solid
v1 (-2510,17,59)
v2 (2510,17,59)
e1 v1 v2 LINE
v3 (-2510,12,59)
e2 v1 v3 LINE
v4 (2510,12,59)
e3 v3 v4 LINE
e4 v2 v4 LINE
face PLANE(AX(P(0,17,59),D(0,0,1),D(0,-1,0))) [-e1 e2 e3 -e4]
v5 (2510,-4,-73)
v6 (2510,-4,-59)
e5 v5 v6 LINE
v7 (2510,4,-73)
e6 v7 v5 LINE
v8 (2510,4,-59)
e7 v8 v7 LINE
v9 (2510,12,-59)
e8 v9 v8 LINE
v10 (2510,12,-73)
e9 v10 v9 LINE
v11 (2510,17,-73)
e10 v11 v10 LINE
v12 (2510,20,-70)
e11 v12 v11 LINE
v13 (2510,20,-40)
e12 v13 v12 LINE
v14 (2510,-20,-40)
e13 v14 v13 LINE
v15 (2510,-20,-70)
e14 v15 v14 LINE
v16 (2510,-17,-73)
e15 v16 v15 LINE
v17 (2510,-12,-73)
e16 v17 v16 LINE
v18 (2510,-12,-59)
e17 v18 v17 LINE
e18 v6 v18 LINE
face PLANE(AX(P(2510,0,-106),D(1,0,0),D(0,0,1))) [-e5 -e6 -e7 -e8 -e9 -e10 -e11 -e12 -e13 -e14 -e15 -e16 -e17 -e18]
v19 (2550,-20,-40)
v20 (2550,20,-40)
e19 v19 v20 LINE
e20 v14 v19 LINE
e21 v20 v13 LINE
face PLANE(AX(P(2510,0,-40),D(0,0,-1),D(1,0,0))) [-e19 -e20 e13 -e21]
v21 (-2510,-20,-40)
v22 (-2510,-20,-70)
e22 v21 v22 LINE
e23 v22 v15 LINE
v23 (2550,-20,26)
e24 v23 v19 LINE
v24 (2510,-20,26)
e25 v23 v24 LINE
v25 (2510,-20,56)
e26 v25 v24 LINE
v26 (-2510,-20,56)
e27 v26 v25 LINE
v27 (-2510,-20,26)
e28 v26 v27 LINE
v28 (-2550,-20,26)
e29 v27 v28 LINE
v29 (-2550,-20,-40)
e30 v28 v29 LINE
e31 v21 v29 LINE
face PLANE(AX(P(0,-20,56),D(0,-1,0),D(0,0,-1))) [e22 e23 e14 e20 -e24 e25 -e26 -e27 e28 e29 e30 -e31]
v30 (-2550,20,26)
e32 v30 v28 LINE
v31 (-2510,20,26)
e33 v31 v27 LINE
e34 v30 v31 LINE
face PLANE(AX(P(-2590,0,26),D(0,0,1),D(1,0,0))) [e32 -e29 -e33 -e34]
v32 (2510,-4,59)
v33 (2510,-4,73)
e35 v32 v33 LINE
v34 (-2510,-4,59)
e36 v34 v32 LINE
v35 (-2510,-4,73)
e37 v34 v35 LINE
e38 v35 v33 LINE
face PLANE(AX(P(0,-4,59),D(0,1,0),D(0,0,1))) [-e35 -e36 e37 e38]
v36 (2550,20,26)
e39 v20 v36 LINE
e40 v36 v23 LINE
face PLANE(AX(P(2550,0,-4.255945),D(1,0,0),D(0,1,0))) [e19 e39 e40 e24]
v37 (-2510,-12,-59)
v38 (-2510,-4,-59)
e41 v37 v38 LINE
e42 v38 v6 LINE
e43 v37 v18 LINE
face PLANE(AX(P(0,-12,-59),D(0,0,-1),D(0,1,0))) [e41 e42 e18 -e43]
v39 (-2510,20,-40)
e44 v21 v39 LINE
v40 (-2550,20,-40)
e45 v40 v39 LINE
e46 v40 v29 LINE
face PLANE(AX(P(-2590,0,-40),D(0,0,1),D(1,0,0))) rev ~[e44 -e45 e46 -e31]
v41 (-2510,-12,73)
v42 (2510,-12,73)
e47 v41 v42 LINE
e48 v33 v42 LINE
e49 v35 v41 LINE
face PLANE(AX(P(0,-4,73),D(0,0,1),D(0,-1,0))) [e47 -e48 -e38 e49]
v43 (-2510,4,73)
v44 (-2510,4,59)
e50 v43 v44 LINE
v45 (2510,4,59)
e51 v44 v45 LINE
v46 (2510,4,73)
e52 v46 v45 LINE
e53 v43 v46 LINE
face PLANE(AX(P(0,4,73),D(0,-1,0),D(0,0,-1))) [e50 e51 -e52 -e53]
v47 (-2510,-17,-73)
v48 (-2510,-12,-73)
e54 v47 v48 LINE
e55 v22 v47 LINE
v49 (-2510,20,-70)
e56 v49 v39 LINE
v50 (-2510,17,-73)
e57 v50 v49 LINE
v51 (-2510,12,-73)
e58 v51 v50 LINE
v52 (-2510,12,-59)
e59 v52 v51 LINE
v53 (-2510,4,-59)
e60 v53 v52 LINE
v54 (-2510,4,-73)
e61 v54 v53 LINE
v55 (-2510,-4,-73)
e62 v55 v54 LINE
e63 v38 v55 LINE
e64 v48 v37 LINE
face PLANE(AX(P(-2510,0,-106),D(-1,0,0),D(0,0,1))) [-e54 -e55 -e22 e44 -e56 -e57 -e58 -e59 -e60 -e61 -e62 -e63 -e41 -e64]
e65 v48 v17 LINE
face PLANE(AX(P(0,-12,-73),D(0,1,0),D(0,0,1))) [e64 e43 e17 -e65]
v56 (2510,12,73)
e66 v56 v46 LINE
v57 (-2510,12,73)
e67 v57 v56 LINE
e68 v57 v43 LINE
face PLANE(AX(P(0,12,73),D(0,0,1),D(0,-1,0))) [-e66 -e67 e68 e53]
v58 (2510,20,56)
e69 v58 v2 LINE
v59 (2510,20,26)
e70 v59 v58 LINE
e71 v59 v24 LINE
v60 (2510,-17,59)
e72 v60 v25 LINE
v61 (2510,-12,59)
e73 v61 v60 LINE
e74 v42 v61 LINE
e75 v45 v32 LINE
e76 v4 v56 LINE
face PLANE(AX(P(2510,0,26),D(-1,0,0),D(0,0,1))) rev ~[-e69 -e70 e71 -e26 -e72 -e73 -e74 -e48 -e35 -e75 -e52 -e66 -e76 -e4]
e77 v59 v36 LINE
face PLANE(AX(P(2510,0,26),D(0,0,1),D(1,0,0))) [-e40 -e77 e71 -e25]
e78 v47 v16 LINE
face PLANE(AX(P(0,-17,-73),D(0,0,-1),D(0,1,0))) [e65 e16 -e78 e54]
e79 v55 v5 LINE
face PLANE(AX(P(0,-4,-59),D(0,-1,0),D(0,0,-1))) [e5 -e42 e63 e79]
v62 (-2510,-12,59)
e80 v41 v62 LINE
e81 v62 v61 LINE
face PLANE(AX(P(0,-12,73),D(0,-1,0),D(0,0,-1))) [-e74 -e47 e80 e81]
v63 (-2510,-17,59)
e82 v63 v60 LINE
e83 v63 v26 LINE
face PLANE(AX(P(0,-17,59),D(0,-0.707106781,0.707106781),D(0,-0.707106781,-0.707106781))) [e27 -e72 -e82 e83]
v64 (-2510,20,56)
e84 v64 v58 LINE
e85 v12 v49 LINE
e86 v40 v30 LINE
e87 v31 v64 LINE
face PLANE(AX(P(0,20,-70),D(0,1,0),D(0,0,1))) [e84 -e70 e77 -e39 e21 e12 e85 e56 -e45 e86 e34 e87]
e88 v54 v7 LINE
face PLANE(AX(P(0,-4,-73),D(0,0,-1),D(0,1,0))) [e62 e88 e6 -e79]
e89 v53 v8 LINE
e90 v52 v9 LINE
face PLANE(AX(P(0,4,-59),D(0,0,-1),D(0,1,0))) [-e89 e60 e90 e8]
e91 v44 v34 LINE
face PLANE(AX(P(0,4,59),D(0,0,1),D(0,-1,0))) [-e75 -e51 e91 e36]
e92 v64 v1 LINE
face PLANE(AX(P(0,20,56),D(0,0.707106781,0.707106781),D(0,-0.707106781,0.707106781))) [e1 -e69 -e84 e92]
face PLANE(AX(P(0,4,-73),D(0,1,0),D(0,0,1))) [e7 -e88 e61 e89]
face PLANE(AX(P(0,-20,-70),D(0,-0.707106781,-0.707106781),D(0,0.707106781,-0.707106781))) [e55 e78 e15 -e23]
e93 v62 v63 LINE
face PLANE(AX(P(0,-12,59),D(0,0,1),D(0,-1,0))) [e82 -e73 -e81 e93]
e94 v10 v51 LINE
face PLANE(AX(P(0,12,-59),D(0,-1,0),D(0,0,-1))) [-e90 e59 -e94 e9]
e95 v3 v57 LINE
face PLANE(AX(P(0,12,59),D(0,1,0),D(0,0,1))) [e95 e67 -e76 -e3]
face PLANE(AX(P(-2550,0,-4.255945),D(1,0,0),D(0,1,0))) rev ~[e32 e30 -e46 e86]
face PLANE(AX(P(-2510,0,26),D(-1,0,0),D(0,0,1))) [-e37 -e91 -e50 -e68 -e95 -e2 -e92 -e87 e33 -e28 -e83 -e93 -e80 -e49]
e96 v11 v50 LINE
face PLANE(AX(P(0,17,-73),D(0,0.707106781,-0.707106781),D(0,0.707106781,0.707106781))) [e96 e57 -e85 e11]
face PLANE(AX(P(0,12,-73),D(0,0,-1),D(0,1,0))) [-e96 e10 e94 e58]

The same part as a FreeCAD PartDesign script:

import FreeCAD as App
import Part
import Sketcher
from FreeCAD import Vector

doc = App.newDocument("Part")
body = doc.addObject("PartDesign::Body", "Body")

# Sketch on YZ plane
sketch1 = body.newObject("Sketcher::SketchObject", "Sketch")
sketch1.AttachmentSupport = (doc.getObject("YZ_Plane"), [""])
sketch1.MapMode = "FlatFace"
sketch1.addGeometry([
    Part.LineSegment(Vector(20, -70, 0), Vector(20, 56, 0)),  # 0
    Part.LineSegment(Vector(20, 56, 0), Vector(17, 59, 0)),  # 1
    Part.LineSegment(Vector(17, 59, 0), Vector(12, 59, 0)),  # 2
    Part.LineSegment(Vector(12, 59, 0), Vector(12, 73, 0)),  # 3
    Part.LineSegment(Vector(12, 73, 0), Vector(4, 73, 0)),  # 4
    Part.LineSegment(Vector(4, 73, 0), Vector(4, 59, 0)),  # 5
    Part.LineSegment(Vector(4, 59, 0), Vector(-4, 59, 0)),  # 6
    Part.LineSegment(Vector(-4, 59, 0), Vector(-4, 73, 0)),  # 7
    Part.LineSegment(Vector(-4, 73, 0), Vector(-12, 73, 0)),  # 8
    Part.LineSegment(Vector(-12, 73, 0), Vector(-12, 59, 0)),  # 9
    Part.LineSegment(Vector(-12, 59, 0), Vector(-17, 59, 0)),  # 10
    Part.LineSegment(Vector(-17, 59, 0), Vector(-20, 56, 0)),  # 11
    Part.LineSegment(Vector(-20, 56, 0), Vector(-20, -70, 0)),  # 12
    Part.LineSegment(Vector(-20, -70, 0), Vector(-17, -73, 0)),  # 13
    Part.LineSegment(Vector(-17, -73, 0), Vector(-12, -73, 0)),  # 14
    Part.LineSegment(Vector(-12, -73, 0), Vector(-12, -59, 0)),  # 15
    Part.LineSegment(Vector(-12, -59, 0), Vector(-4, -59, 0)),  # 16
    Part.LineSegment(Vector(-4, -59, 0), Vector(-4, -73, 0)),  # 17
    Part.LineSegment(Vector(-4, -73, 0), Vector(4, -73, 0)),  # 18
    Part.LineSegment(Vector(4, -73, 0), Vector(4, -59, 0)),  # 19
    Part.LineSegment(Vector(4, -59, 0), Vector(12, -59, 0)),  # 20
    Part.LineSegment(Vector(12, -59, 0), Vector(12, -73, 0)),  # 21
    Part.LineSegment(Vector(12, -73, 0), Vector(17, -73, 0)),  # 22
    Part.LineSegment(Vector(17, -73, 0), Vector(20, -70, 0)),  # 23
], False)
sketch1.addConstraint([
    Sketcher.Constraint("Coincident", 0, 2, 1, 1),
    Sketcher.Constraint("Coincident", 1, 2, 2, 1),
    Sketcher.Constraint("Coincident", 2, 2, 3, 1),
    Sketcher.Constraint("Coincident", 3, 2, 4, 1),
    Sketcher.Constraint("Coincident", 4, 2, 5, 1),
    Sketcher.Constraint("Coincident", 5, 2, 6, 1),
    Sketcher.Constraint("Coincident", 6, 2, 7, 1),
    Sketcher.Constraint("Coincident", 7, 2, 8, 1),
    Sketcher.Constraint("Coincident", 8, 2, 9, 1),
    Sketcher.Constraint("Coincident", 9, 2, 10, 1),
    Sketcher.Constraint("Coincident", 10, 2, 11, 1),
    Sketcher.Constraint("Coincident", 11, 2, 12, 1),
    Sketcher.Constraint("Coincident", 12, 2, 13, 1),
    Sketcher.Constraint("Coincident", 13, 2, 14, 1),
    Sketcher.Constraint("Coincident", 14, 2, 15, 1),
    Sketcher.Constraint("Coincident", 15, 2, 16, 1),
    Sketcher.Constraint("Coincident", 16, 2, 17, 1),
    Sketcher.Constraint("Coincident", 17, 2, 18, 1),
    Sketcher.Constraint("Coincident", 18, 2, 19, 1),
    Sketcher.Constraint("Coincident", 19, 2, 20, 1),
    Sketcher.Constraint("Coincident", 20, 2, 21, 1),
    Sketcher.Constraint("Coincident", 21, 2, 22, 1),
    Sketcher.Constraint("Coincident", 22, 2, 23, 1),
    Sketcher.Constraint("Coincident", 23, 2, 0, 1),
    Sketcher.Constraint("Vertical", 0),
    Sketcher.Constraint("Horizontal", 2),
    Sketcher.Constraint("Vertical", 3),
    Sketcher.Constraint("Horizontal", 4),
    Sketcher.Constraint("Vertical", 5),
    Sketcher.Constraint("Horizontal", 6),
    Sketcher.Constraint("Vertical", 7),
    Sketcher.Constraint("Horizontal", 8),
    Sketcher.Constraint("Vertical", 9),
    Sketcher.Constraint("Horizontal", 10),
    Sketcher.Constraint("Vertical", 12),
    Sketcher.Constraint("Horizontal", 14),
    Sketcher.Constraint("Vertical", 15),
    Sketcher.Constraint("Horizontal", 16),
    Sketcher.Constraint("Vertical", 17),
    Sketcher.Constraint("Horizontal", 18),
    Sketcher.Constraint("Vertical", 19),
    Sketcher.Constraint("Horizontal", 20),
    Sketcher.Constraint("Vertical", 21),
    Sketcher.Constraint("Horizontal", 22),
    Sketcher.Constraint("Symmetric", 3, 2, 14, 2, -1, 1),
    Sketcher.Constraint("Symmetric", 5, 2, 16, 2, -1, 1),
    Sketcher.Constraint("Symmetric", 7, 2, 18, 2, -1, 1),
    Sketcher.Constraint("Symmetric", 9, 2, 20, 2, -1, 1),
    Sketcher.Constraint("Symmetric", 4, 2, 7, 2, -2),
    Sketcher.Constraint("Symmetric", 2, 2, 9, 2, -2),
    Sketcher.Constraint("Symmetric", 0, 2, 11, 2, -2),
    Sketcher.Constraint("Symmetric", 13, 2, 22, 2, -2),
    Sketcher.Constraint("Perpendicular", 1, 11),
    Sketcher.Constraint("Perpendicular", 11, 13),
    Sketcher.Constraint("Perpendicular", 13, 23),
    Sketcher.Constraint("Horizontal", 2, 2, 5, 2),
    Sketcher.Constraint("Horizontal", 12, 2, 23, 2),
    Sketcher.Constraint("Vertical", 10, 2, 13, 2),
    Sketcher.Constraint("Equal", 4, 6),
    Sketcher.Constraint("DistanceX", 2, 2, 2, 1, 5.0),
    Sketcher.Constraint("DistanceX", 4, 2, 4, 1, 8.0),
    Sketcher.Constraint("DistanceY", 0, 1, 0, 2, 126.0),
    Sketcher.Constraint("DistanceY", 3, 1, 3, 2, 14.0),
    Sketcher.Constraint("DistanceX", -1, 1, 0, 2, 20.0),
])
pad1 = body.newObject("PartDesign::Pad", "Pad")
pad1.Profile = sketch1
pad1.Length = 5100
pad1.Midplane = True

# Sketch on XZ plane
sketch2 = body.newObject("Sketcher::SketchObject", "Sketch001")
sketch2.AttachmentSupport = (doc.getObject("XZ_Plane"), [""])
sketch2.MapMode = "FlatFace"
sketch2.addGeometry([
    Part.LineSegment(Vector(-2590, 92, 0), Vector(-2590, 26, 0)),  # 0
    Part.LineSegment(Vector(-2590, 26, 0), Vector(-2510, 26, 0)),  # 1
    Part.LineSegment(Vector(-2510, 26, 0), Vector(-2510, 92, 0)),  # 2
    Part.LineSegment(Vector(-2510, 92, 0), Vector(-2590, 92, 0)),  # 3
    Part.LineSegment(Vector(-2590, -40, 0), Vector(-2590, -106, 0)),  # 4
    Part.LineSegment(Vector(-2590, -106, 0), Vector(-2510, -106, 0)),  # 5
    Part.LineSegment(Vector(-2510, -106, 0), Vector(-2510, -40, 0)),  # 6
    Part.LineSegment(Vector(-2510, -40, 0), Vector(-2590, -40, 0)),  # 7
    Part.LineSegment(Vector(2510, 92, 0), Vector(2510, 26, 0)),  # 8
    Part.LineSegment(Vector(2510, 26, 0), Vector(2590, 26, 0)),  # 9
    Part.LineSegment(Vector(2590, 26, 0), Vector(2590, 92, 0)),  # 10
    Part.LineSegment(Vector(2590, 92, 0), Vector(2510, 92, 0)),  # 11
    Part.LineSegment(Vector(2510, -40, 0), Vector(2510, -106, 0)),  # 12
    Part.LineSegment(Vector(2510, -106, 0), Vector(2590, -106, 0)),  # 13
    Part.LineSegment(Vector(2590, -106, 0), Vector(2590, -40, 0)),  # 14
    Part.LineSegment(Vector(2590, -40, 0), Vector(2510, -40, 0)),  # 15
], False)
sketch2.addConstraint([
    Sketcher.Constraint("Coincident", 0, 2, 1, 1),
    Sketcher.Constraint("Coincident", 1, 2, 2, 1),
    Sketcher.Constraint("Coincident", 2, 2, 3, 1),
    Sketcher.Constraint("Coincident", 3, 2, 0, 1),
    Sketcher.Constraint("Coincident", 4, 2, 5, 1),
    Sketcher.Constraint("Coincident", 5, 2, 6, 1),
    Sketcher.Constraint("Coincident", 6, 2, 7, 1),
    Sketcher.Constraint("Coincident", 7, 2, 4, 1),
    Sketcher.Constraint("Coincident", 8, 2, 9, 1),
    Sketcher.Constraint("Coincident", 9, 2, 10, 1),
    Sketcher.Constraint("Coincident", 10, 2, 11, 1),
    Sketcher.Constraint("Coincident", 11, 2, 8, 1),
    Sketcher.Constraint("Coincident", 12, 2, 13, 1),
    Sketcher.Constraint("Coincident", 13, 2, 14, 1),
    Sketcher.Constraint("Coincident", 14, 2, 15, 1),
    Sketcher.Constraint("Coincident", 15, 2, 12, 1),
    Sketcher.Constraint("Vertical", 0),
    Sketcher.Constraint("Horizontal", 1),
    Sketcher.Constraint("Vertical", 2),
    Sketcher.Constraint("Horizontal", 3),
    Sketcher.Constraint("Vertical", 4),
    Sketcher.Constraint("Horizontal", 5),
    Sketcher.Constraint("Vertical", 6),
    Sketcher.Constraint("Horizontal", 7),
    Sketcher.Constraint("Vertical", 8),
    Sketcher.Constraint("Horizontal", 9),
    Sketcher.Constraint("Vertical", 10),
    Sketcher.Constraint("Horizontal", 11),
    Sketcher.Constraint("Vertical", 12),
    Sketcher.Constraint("Horizontal", 13),
    Sketcher.Constraint("Vertical", 14),
    Sketcher.Constraint("Horizontal", 15),
    Sketcher.Constraint("Symmetric", 1, 2, 8, 2, -2),
    Sketcher.Constraint("Symmetric", 3, 2, 10, 2, -2),
    Sketcher.Constraint("Symmetric", 5, 2, 12, 2, -2),
    Sketcher.Constraint("Symmetric", 7, 2, 14, 2, -2),
    Sketcher.Constraint("Vertical", 3, 2, 4, 2),
    Sketcher.Constraint("Vertical", 2, 2, 5, 2),
    Sketcher.Constraint("Equal", 2, 4),
    Sketcher.Constraint("DistanceX", 1, 1, 1, 2, 80.0),
    Sketcher.Constraint("DistanceY", 0, 2, 0, 1, 66.0),
    Sketcher.Constraint("DistanceX", 0, 2, -1, 1, 2590.0),
    Sketcher.Constraint("DistanceY", -1, 1, 0, 2, 26.0),
    Sketcher.Constraint("DistanceY", 4, 2, -1, 1, 106.0),
])
pocket1 = body.newObject("PartDesign::Pocket", "Pocket")
pocket1.Profile = sketch2
pocket1.Length = 100
pocket1.Midplane = True

doc.recompute()
